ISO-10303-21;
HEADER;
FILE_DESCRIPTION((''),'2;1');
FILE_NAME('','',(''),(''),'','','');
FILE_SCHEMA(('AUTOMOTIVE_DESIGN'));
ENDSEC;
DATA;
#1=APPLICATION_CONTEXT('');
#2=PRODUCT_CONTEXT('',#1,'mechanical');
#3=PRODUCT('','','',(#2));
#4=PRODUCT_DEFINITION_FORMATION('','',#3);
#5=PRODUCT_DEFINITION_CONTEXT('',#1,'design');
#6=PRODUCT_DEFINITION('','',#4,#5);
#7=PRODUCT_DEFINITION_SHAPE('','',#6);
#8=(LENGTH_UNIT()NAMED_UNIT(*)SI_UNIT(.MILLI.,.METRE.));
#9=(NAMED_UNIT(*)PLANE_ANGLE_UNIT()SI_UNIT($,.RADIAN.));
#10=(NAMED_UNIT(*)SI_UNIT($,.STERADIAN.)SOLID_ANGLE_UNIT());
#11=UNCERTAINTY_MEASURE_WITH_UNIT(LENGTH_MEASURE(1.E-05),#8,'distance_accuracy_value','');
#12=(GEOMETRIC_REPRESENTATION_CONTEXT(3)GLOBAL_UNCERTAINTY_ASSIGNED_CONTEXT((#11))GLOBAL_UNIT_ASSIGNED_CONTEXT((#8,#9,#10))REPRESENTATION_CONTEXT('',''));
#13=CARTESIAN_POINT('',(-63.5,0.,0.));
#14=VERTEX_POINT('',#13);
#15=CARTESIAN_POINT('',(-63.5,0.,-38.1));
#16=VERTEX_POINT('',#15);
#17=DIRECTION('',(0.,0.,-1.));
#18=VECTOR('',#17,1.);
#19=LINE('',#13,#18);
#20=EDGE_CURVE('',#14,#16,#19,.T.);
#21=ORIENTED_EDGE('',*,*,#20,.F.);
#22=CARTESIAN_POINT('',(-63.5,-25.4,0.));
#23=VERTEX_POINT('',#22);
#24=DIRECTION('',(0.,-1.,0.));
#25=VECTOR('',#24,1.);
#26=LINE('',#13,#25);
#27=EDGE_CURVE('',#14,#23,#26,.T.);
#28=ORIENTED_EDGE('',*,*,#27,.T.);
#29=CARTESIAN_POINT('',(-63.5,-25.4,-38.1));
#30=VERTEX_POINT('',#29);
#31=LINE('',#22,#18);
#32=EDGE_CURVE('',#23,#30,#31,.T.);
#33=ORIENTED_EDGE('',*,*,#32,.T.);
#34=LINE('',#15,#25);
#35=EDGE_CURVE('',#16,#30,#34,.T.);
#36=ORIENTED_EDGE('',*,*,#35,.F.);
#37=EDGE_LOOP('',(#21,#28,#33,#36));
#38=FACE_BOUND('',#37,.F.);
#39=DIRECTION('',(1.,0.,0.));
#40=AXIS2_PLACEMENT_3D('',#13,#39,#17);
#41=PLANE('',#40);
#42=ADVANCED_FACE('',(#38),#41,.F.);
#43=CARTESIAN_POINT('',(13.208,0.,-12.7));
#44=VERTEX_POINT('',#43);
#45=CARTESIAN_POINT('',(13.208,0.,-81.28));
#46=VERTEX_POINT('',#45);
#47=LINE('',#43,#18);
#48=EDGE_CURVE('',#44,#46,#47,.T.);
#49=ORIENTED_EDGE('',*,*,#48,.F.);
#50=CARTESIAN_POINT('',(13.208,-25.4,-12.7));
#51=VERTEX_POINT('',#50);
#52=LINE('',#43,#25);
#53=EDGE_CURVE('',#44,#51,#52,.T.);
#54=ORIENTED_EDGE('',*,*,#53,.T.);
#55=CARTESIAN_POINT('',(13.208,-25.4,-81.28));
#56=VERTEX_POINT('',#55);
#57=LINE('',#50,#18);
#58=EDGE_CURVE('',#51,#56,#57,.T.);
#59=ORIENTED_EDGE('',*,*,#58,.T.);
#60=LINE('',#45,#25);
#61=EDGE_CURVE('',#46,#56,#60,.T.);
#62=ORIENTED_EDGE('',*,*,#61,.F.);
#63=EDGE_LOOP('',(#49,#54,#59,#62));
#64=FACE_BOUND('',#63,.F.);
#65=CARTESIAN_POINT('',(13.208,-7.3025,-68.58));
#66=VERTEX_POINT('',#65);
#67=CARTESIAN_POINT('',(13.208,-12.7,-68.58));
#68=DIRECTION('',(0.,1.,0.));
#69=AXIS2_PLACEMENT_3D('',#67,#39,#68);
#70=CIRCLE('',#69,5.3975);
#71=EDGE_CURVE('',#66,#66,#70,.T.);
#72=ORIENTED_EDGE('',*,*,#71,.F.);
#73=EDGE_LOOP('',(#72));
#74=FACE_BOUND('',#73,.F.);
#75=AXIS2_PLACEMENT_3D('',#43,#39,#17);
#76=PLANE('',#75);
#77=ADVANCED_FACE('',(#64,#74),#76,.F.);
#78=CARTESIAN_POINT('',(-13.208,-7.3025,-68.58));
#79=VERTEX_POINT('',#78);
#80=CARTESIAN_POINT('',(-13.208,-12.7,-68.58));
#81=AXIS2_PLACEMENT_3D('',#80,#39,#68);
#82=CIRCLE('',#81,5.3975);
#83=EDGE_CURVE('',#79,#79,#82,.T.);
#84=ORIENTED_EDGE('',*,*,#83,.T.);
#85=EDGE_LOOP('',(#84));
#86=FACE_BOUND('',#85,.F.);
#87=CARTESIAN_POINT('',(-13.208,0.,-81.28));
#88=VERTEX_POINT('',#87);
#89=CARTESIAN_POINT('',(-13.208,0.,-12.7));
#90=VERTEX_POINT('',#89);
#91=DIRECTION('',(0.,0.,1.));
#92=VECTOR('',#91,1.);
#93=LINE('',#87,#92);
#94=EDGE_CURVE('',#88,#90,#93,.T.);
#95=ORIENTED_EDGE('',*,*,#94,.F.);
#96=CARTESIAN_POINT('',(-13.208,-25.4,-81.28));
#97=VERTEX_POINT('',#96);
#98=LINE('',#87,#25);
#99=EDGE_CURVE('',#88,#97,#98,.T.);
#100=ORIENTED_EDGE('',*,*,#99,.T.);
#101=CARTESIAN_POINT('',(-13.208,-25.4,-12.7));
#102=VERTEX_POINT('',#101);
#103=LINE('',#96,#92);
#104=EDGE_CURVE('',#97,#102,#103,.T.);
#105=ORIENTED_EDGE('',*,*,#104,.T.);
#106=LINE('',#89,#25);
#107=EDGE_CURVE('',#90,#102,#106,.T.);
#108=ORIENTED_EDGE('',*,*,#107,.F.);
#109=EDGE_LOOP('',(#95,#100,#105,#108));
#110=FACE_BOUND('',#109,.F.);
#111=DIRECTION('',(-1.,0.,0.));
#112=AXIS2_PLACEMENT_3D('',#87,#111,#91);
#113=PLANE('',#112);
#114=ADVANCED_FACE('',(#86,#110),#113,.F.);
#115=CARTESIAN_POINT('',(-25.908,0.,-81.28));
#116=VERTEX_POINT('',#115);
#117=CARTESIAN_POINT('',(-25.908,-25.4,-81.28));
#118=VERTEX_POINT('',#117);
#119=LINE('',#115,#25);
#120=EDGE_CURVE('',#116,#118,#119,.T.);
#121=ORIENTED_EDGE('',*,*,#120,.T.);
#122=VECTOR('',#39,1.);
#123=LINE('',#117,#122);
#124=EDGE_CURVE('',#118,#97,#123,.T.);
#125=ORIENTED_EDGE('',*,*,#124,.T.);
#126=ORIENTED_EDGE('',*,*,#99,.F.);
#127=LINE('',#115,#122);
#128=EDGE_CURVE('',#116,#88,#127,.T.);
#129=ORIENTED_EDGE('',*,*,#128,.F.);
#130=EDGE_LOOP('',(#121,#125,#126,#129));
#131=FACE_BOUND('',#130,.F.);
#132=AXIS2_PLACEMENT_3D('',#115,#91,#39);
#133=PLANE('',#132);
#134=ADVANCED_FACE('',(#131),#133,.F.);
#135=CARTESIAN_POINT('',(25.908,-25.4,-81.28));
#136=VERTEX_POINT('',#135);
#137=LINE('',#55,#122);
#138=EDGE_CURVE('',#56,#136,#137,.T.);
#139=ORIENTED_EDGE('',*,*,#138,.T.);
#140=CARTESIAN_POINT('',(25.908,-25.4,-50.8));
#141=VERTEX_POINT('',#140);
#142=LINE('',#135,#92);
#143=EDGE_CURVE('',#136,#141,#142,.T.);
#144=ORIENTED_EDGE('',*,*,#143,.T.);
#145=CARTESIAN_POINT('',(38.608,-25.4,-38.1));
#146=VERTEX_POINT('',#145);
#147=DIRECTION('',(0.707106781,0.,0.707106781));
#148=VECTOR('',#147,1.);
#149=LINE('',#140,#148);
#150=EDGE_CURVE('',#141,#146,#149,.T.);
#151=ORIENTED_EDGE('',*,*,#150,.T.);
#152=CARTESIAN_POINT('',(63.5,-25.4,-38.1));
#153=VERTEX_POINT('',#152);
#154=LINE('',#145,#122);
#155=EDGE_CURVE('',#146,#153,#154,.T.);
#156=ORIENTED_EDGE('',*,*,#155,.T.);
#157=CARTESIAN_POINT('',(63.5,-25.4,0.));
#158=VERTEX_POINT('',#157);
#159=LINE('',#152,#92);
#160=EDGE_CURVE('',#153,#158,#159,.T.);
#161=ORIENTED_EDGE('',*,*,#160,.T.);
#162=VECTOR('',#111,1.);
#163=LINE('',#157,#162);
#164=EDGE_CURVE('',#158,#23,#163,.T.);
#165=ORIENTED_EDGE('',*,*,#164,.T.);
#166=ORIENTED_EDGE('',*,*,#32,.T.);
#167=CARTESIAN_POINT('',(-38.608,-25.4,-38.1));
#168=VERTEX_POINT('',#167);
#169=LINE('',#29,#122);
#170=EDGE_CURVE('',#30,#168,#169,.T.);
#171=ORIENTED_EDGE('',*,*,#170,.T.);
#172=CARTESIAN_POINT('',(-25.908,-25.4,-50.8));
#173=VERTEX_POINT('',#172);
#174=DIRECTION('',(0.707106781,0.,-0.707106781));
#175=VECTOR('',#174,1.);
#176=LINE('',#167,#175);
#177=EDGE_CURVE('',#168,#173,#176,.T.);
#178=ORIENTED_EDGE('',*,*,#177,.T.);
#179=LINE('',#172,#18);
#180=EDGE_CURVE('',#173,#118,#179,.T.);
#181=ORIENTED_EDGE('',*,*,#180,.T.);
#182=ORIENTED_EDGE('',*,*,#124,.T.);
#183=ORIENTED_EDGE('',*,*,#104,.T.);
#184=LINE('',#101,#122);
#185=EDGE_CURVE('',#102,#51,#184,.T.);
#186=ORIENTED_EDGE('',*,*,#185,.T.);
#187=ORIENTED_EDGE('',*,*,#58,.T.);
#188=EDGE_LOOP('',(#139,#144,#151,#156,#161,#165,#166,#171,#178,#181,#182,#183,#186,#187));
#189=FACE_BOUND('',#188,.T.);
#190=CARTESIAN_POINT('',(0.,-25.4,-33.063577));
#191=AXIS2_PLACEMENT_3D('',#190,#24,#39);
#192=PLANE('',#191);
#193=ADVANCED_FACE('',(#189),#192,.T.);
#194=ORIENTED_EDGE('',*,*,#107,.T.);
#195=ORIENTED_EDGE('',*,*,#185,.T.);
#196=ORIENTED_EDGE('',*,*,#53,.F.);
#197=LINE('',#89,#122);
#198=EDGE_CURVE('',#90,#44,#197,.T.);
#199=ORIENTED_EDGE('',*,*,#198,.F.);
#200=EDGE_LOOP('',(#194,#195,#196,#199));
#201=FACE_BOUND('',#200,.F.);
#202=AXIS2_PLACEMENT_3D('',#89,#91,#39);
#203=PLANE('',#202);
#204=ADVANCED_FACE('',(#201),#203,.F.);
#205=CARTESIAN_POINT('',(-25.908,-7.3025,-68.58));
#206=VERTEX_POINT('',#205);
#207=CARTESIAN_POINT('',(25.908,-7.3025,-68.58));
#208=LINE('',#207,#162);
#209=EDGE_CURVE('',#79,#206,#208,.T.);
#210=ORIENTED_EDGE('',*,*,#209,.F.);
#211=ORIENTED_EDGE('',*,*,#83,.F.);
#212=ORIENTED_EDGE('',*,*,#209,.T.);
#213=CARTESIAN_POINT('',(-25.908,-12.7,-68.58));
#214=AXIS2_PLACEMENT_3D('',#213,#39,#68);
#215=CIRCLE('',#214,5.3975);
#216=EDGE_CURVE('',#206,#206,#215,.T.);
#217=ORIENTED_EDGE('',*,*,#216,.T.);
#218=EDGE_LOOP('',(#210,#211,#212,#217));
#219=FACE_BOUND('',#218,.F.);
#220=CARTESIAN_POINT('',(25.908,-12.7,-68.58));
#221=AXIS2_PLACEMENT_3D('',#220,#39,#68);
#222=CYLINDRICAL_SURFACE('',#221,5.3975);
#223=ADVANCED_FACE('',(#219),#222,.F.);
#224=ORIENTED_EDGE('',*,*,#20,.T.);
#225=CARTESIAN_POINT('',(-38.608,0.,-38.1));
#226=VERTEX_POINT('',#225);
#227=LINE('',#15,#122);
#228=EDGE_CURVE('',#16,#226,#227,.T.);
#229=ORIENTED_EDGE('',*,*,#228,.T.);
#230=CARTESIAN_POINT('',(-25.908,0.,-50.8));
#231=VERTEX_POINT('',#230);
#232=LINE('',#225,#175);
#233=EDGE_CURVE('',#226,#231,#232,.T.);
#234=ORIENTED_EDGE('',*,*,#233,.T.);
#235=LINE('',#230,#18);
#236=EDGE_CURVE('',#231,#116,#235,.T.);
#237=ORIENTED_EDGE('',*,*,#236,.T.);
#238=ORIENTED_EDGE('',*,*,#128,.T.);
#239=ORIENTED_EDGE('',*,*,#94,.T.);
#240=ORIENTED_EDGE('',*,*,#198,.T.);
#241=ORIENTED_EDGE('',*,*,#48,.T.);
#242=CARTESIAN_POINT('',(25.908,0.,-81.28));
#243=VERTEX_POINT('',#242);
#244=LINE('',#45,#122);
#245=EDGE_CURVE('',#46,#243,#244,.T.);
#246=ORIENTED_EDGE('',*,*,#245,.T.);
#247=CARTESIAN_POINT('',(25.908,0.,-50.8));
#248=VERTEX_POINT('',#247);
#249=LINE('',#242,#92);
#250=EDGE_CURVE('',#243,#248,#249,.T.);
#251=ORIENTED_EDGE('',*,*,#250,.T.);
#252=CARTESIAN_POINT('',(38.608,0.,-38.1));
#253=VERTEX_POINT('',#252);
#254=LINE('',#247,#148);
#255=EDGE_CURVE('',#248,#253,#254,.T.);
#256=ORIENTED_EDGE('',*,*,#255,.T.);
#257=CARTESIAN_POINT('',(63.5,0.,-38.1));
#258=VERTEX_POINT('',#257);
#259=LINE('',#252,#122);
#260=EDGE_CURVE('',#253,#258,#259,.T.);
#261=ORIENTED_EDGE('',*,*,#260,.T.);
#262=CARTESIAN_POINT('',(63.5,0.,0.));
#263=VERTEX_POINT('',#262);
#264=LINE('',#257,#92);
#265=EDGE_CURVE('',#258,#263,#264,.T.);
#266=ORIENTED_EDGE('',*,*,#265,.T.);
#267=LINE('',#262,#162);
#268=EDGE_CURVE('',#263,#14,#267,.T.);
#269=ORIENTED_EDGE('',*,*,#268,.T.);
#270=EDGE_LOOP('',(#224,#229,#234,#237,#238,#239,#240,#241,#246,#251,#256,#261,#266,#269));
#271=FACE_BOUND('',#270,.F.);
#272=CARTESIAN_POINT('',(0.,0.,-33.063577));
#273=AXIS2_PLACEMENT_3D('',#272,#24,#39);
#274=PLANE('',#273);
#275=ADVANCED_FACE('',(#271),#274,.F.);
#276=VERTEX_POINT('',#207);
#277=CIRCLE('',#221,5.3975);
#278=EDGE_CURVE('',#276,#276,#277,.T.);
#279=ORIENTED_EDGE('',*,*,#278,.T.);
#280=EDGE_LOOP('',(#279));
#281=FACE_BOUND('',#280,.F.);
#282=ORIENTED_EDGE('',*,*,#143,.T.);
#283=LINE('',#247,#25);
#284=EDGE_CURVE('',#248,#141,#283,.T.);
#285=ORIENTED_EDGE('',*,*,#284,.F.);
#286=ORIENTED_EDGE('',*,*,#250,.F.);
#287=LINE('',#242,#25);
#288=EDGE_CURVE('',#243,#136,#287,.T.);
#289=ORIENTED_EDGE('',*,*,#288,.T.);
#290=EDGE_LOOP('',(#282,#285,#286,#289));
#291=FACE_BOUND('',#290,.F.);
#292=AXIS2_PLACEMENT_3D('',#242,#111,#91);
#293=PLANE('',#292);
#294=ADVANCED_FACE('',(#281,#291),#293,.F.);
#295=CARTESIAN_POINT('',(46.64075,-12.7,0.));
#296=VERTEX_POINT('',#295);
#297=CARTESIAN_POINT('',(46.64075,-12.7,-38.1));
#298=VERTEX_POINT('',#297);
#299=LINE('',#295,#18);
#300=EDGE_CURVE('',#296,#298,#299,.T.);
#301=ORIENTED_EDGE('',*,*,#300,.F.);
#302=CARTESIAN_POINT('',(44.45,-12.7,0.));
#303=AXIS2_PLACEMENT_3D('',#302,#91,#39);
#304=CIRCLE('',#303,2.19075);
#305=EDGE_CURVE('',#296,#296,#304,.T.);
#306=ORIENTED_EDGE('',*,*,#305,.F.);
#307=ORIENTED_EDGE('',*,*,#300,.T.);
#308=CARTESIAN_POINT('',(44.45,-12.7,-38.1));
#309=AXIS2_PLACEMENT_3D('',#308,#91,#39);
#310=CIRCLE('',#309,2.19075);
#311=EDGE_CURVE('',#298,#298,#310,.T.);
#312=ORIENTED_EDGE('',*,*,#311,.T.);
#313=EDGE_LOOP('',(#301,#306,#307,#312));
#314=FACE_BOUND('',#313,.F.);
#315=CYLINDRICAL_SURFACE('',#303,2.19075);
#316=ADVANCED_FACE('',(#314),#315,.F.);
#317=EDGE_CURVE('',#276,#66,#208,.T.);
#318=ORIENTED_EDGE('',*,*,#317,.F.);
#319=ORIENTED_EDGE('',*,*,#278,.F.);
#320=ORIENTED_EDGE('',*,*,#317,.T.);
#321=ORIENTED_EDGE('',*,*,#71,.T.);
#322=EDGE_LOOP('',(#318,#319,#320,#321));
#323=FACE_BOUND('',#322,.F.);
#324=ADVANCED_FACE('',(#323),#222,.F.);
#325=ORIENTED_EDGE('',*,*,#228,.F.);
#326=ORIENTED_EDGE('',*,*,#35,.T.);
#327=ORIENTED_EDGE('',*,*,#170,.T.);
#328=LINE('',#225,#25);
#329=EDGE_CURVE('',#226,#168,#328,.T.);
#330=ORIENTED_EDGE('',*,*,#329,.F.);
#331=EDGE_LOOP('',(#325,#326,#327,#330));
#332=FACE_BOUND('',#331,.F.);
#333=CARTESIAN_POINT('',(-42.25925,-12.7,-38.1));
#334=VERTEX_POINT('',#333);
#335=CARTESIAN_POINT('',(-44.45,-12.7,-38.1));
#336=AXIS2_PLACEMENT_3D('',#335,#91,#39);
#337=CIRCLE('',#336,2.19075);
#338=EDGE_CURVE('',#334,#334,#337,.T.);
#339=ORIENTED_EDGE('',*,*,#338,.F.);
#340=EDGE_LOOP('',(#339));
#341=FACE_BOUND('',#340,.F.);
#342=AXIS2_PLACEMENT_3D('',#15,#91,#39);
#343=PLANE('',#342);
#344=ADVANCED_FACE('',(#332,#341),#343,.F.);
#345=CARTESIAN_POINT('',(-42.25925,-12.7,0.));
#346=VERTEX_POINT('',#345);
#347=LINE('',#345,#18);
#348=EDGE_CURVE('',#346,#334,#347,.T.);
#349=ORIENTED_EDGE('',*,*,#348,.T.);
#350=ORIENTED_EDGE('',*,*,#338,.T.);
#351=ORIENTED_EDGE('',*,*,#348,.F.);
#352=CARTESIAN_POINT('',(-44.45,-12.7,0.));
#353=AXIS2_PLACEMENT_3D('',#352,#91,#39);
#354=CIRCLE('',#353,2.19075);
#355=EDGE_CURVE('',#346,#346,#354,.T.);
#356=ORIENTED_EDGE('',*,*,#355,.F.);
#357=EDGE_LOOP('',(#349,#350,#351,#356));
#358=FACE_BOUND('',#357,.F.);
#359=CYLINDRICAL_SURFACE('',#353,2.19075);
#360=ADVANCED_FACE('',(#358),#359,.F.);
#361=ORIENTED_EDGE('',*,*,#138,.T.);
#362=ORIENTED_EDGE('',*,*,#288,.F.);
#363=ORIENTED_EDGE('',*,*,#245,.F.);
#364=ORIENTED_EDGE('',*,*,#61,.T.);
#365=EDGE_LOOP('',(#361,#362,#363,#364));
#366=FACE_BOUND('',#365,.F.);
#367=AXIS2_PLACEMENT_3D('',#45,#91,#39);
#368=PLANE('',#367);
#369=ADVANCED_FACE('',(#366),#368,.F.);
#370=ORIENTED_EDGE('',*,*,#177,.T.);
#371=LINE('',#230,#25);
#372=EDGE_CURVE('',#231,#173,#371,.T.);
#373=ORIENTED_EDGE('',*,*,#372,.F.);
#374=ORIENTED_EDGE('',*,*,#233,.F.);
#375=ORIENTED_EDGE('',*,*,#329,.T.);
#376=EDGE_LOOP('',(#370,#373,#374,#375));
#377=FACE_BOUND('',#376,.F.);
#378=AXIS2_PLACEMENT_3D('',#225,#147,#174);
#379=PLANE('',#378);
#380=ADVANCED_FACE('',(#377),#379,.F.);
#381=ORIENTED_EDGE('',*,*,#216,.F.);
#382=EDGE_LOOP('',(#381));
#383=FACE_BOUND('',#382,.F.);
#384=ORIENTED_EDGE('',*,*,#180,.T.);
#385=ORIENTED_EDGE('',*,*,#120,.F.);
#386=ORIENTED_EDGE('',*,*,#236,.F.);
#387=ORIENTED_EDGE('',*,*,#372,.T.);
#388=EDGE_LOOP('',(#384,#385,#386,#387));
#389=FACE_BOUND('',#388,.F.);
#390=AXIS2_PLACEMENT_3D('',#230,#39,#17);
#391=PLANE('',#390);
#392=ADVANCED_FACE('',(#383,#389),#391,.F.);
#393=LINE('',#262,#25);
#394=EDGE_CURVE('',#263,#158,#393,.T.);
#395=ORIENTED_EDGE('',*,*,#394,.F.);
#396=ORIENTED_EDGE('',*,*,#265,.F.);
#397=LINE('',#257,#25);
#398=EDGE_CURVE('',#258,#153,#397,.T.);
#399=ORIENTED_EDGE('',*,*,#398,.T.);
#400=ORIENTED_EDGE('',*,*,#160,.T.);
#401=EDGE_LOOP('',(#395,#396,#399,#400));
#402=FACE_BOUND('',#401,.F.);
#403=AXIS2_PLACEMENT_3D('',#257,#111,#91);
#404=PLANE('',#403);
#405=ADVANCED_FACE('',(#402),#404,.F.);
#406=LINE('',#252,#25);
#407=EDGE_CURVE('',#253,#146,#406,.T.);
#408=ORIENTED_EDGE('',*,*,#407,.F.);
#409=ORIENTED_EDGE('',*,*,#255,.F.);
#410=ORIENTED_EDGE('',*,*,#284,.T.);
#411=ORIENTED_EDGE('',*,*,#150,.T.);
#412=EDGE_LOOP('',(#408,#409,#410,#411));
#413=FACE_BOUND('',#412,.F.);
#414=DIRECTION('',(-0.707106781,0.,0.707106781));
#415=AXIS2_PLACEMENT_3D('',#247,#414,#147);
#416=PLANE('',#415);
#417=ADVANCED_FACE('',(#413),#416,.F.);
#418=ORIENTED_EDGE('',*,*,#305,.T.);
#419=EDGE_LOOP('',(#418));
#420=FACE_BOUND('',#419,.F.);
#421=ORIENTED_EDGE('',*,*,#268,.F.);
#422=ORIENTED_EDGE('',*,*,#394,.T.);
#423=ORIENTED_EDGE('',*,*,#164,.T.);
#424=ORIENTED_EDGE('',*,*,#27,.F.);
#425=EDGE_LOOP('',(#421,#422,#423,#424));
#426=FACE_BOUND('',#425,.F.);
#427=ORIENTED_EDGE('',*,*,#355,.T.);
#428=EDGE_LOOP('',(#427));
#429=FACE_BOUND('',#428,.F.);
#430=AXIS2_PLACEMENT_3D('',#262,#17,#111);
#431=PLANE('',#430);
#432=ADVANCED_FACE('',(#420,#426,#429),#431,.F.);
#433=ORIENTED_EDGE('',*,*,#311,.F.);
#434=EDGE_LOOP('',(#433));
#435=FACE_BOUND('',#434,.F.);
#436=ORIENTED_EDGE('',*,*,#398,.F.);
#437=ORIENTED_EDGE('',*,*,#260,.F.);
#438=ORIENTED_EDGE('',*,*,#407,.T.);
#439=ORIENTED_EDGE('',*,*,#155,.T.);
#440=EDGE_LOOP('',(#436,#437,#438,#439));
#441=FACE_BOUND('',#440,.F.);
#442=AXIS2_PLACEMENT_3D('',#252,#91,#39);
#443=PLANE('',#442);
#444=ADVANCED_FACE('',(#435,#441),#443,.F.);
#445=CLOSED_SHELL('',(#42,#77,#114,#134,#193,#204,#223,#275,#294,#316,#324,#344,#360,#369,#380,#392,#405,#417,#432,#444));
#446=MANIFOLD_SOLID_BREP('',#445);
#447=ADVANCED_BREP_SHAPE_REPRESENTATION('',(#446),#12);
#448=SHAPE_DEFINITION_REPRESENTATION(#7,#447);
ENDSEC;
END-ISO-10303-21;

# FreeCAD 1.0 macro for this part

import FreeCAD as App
import Part
import Sketcher
from FreeCAD import Vector
Q = App.Units.Quantity

doc = App.newDocument("Part")
body = doc.addObject("PartDesign::Body", "Body")

sketch1 = body.newObject("Sketcher::SketchObject", "Sketch")
sketch1.AttachmentSupport = (doc.getObject("XZ_Plane"), [""])
sketch1.MapMode = "FlatFace"
sketch1.addGeometry([
    Part.LineSegment(Vector(26, -51, 0), Vector(39, -38, 0)),
    Part.LineSegment(Vector(39, -38, 0), Vector(64, -38, 0)),
    Part.LineSegment(Vector(64, -38, 0), Vector(64, 0, 0)),
    Part.LineSegment(Vector(64, 0, 0), Vector(-64, 0, 0)),
    Part.LineSegment(Vector(-64, 0, 0), Vector(-64, -38, 0)),
    Part.LineSegment(Vector(-64, -38, 0), Vector(-39, -38, 0)),
    Part.LineSegment(Vector(-39, -38, 0), Vector(-26, -51, 0)),
    Part.LineSegment(Vector(-26, -51, 0), Vector(-26, -81, 0)),
    Part.LineSegment(Vector(-26, -81, 0), Vector(-13, -81, 0)),
    Part.LineSegment(Vector(-13, -81, 0), Vector(-13, -13, 0)),
    Part.LineSegment(Vector(-13, -13, 0), Vector(13, -13, 0)),
    Part.LineSegment(Vector(13, -13, 0), Vector(13, -81, 0)),
    Part.LineSegment(Vector(13, -81, 0), Vector(26, -81, 0)),
    Part.LineSegment(Vector(26, -81, 0), Vector(26, -51, 0)),
], False)
sketch1.addConstraint([
    Sketcher.Constraint("Coincident", 0, 2, 1, 1),
    Sketcher.Constraint("Coincident", 1, 2, 2, 1),
    Sketcher.Constraint("Coincident", 2, 2, 3, 1),
    Sketcher.Constraint("Coincident", 3, 2, 4, 1),
    Sketcher.Constraint("Coincident", 4, 2, 5, 1),
    Sketcher.Constraint("Coincident", 5, 2, 6, 1),
    Sketcher.Constraint("Coincident", 6, 2, 7, 1),
    Sketcher.Constraint("Coincident", 7, 2, 8, 1),
    Sketcher.Constraint("Coincident", 8, 2, 9, 1),
    Sketcher.Constraint("Coincident", 9, 2, 10, 1),
    Sketcher.Constraint("Coincident", 10, 2, 11, 1),
    Sketcher.Constraint("Coincident", 11, 2, 12, 1),
    Sketcher.Constraint("Coincident", 12, 2, 13, 1),
    Sketcher.Constraint("Coincident", 13, 2, 0, 1),
    Sketcher.Constraint("Horizontal", 1),
    Sketcher.Constraint("Vertical", 2),
    Sketcher.Constraint("Horizontal", 3),
    Sketcher.Constraint("Vertical", 4),
    Sketcher.Constraint("Horizontal", 5),
    Sketcher.Constraint("Vertical", 7),
    Sketcher.Constraint("Horizontal", 8),
    Sketcher.Constraint("Vertical", 9),
    Sketcher.Constraint("Horizontal", 10),
    Sketcher.Constraint("Vertical", 11),
    Sketcher.Constraint("Horizontal", 12),
    Sketcher.Constraint("Vertical", 13),
    Sketcher.Constraint("Symmetric", 2, 2, 3, 2, -1, 1),
    Sketcher.Constraint("Symmetric", 0, 2, 5, 2, -2),
    Sketcher.Constraint("Symmetric", 8, 2, 11, 2, -2),
    Sketcher.Constraint("Symmetric", 6, 2, 13, 2, -2),
    Sketcher.Constraint("Perpendicular", 0, 6),
    Sketcher.Constraint("DistanceX", 3, 2, 3, 1, Q("5 in")),
    Sketcher.Constraint("DistanceX", 8, 1, 8, 2, Q("0.5 in")),
    Sketcher.Constraint("DistanceY", 2, 1, 2, 2, Q("1.5 in")),
    Sketcher.Constraint("DistanceY", 7, 2, 7, 1, Q("1.2 in")),
    Sketcher.Constraint("DistanceY", 9, 1, 9, 2, Q("2.7 in")),
    Sketcher.Constraint("DistanceY", 6, 2, -1, 1, Q("2 in")),
    Sketcher.Constraint("DistanceX", 1, 1, 1, 2, Q("0.98 in")),
])
pad1 = body.newObject("PartDesign::Pad", "Pad")
pad1.Profile = sketch1
pad1.Length = Q("1 in")

sketch2 = body.newObject("Sketcher::SketchObject", "Sketch001")
sketch2.AttachmentSupport = (doc.getObject("XY_Plane"), [""])
sketch2.MapMode = "FlatFace"
sketch2.addGeometry([
    Part.Circle(Vector(-44.5, -12.7, 0), Vector(0, 0, 1), 2.2),
    Part.Circle(Vector(44.5, -12.7, 0), Vector(0, 0, 1), 2.2),
], False)
sketch2.addConstraint([
    Sketcher.Constraint("Equal", 0, 1),
    Sketcher.Constraint("Symmetric", 0, 3, 1, 3, -2),
    Sketcher.Constraint("Diameter", 0, Q("0.1725 in")),
    Sketcher.Constraint("DistanceY", 0, 3, -1, 1, Q("0.5 in")),
    Sketcher.Constraint("DistanceX", 0, 3, 1, 3, Q("3.5 in")),
])
pocket1 = body.newObject("PartDesign::Pocket", "Pocket")
pocket1.Profile = sketch2
pocket1.Type = "ThroughAll"

sketch3 = body.newObject("Sketcher::SketchObject", "Sketch002")
sketch3.AttachmentSupport = (doc.getObject("YZ_Plane"), [""])
sketch3.MapMode = "FlatFace"
sketch3.AttachmentOffset = App.Placement(Vector(0, 0, 1.02 * 25.4), App.Rotation())
sketch3.addGeometry(Part.Circle(Vector(-13, -69, 0), Vector(0, 0, 1), 5), False)
sketch3.addConstraint([
    Sketcher.Constraint("Diameter", 0, Q("0.425 in")),
    Sketcher.Constraint("DistanceX", 0, 3, -1, 1, Q("0.5 in")),
    Sketcher.Constraint("DistanceY", 0, 3, -1, 1, Q("2.7 in")),
])
pocket2 = body.newObject("PartDesign::Pocket", "Pocket001")
pocket2.Profile = sketch3
pocket2.Type = "ThroughAll"

doc.recompute()
